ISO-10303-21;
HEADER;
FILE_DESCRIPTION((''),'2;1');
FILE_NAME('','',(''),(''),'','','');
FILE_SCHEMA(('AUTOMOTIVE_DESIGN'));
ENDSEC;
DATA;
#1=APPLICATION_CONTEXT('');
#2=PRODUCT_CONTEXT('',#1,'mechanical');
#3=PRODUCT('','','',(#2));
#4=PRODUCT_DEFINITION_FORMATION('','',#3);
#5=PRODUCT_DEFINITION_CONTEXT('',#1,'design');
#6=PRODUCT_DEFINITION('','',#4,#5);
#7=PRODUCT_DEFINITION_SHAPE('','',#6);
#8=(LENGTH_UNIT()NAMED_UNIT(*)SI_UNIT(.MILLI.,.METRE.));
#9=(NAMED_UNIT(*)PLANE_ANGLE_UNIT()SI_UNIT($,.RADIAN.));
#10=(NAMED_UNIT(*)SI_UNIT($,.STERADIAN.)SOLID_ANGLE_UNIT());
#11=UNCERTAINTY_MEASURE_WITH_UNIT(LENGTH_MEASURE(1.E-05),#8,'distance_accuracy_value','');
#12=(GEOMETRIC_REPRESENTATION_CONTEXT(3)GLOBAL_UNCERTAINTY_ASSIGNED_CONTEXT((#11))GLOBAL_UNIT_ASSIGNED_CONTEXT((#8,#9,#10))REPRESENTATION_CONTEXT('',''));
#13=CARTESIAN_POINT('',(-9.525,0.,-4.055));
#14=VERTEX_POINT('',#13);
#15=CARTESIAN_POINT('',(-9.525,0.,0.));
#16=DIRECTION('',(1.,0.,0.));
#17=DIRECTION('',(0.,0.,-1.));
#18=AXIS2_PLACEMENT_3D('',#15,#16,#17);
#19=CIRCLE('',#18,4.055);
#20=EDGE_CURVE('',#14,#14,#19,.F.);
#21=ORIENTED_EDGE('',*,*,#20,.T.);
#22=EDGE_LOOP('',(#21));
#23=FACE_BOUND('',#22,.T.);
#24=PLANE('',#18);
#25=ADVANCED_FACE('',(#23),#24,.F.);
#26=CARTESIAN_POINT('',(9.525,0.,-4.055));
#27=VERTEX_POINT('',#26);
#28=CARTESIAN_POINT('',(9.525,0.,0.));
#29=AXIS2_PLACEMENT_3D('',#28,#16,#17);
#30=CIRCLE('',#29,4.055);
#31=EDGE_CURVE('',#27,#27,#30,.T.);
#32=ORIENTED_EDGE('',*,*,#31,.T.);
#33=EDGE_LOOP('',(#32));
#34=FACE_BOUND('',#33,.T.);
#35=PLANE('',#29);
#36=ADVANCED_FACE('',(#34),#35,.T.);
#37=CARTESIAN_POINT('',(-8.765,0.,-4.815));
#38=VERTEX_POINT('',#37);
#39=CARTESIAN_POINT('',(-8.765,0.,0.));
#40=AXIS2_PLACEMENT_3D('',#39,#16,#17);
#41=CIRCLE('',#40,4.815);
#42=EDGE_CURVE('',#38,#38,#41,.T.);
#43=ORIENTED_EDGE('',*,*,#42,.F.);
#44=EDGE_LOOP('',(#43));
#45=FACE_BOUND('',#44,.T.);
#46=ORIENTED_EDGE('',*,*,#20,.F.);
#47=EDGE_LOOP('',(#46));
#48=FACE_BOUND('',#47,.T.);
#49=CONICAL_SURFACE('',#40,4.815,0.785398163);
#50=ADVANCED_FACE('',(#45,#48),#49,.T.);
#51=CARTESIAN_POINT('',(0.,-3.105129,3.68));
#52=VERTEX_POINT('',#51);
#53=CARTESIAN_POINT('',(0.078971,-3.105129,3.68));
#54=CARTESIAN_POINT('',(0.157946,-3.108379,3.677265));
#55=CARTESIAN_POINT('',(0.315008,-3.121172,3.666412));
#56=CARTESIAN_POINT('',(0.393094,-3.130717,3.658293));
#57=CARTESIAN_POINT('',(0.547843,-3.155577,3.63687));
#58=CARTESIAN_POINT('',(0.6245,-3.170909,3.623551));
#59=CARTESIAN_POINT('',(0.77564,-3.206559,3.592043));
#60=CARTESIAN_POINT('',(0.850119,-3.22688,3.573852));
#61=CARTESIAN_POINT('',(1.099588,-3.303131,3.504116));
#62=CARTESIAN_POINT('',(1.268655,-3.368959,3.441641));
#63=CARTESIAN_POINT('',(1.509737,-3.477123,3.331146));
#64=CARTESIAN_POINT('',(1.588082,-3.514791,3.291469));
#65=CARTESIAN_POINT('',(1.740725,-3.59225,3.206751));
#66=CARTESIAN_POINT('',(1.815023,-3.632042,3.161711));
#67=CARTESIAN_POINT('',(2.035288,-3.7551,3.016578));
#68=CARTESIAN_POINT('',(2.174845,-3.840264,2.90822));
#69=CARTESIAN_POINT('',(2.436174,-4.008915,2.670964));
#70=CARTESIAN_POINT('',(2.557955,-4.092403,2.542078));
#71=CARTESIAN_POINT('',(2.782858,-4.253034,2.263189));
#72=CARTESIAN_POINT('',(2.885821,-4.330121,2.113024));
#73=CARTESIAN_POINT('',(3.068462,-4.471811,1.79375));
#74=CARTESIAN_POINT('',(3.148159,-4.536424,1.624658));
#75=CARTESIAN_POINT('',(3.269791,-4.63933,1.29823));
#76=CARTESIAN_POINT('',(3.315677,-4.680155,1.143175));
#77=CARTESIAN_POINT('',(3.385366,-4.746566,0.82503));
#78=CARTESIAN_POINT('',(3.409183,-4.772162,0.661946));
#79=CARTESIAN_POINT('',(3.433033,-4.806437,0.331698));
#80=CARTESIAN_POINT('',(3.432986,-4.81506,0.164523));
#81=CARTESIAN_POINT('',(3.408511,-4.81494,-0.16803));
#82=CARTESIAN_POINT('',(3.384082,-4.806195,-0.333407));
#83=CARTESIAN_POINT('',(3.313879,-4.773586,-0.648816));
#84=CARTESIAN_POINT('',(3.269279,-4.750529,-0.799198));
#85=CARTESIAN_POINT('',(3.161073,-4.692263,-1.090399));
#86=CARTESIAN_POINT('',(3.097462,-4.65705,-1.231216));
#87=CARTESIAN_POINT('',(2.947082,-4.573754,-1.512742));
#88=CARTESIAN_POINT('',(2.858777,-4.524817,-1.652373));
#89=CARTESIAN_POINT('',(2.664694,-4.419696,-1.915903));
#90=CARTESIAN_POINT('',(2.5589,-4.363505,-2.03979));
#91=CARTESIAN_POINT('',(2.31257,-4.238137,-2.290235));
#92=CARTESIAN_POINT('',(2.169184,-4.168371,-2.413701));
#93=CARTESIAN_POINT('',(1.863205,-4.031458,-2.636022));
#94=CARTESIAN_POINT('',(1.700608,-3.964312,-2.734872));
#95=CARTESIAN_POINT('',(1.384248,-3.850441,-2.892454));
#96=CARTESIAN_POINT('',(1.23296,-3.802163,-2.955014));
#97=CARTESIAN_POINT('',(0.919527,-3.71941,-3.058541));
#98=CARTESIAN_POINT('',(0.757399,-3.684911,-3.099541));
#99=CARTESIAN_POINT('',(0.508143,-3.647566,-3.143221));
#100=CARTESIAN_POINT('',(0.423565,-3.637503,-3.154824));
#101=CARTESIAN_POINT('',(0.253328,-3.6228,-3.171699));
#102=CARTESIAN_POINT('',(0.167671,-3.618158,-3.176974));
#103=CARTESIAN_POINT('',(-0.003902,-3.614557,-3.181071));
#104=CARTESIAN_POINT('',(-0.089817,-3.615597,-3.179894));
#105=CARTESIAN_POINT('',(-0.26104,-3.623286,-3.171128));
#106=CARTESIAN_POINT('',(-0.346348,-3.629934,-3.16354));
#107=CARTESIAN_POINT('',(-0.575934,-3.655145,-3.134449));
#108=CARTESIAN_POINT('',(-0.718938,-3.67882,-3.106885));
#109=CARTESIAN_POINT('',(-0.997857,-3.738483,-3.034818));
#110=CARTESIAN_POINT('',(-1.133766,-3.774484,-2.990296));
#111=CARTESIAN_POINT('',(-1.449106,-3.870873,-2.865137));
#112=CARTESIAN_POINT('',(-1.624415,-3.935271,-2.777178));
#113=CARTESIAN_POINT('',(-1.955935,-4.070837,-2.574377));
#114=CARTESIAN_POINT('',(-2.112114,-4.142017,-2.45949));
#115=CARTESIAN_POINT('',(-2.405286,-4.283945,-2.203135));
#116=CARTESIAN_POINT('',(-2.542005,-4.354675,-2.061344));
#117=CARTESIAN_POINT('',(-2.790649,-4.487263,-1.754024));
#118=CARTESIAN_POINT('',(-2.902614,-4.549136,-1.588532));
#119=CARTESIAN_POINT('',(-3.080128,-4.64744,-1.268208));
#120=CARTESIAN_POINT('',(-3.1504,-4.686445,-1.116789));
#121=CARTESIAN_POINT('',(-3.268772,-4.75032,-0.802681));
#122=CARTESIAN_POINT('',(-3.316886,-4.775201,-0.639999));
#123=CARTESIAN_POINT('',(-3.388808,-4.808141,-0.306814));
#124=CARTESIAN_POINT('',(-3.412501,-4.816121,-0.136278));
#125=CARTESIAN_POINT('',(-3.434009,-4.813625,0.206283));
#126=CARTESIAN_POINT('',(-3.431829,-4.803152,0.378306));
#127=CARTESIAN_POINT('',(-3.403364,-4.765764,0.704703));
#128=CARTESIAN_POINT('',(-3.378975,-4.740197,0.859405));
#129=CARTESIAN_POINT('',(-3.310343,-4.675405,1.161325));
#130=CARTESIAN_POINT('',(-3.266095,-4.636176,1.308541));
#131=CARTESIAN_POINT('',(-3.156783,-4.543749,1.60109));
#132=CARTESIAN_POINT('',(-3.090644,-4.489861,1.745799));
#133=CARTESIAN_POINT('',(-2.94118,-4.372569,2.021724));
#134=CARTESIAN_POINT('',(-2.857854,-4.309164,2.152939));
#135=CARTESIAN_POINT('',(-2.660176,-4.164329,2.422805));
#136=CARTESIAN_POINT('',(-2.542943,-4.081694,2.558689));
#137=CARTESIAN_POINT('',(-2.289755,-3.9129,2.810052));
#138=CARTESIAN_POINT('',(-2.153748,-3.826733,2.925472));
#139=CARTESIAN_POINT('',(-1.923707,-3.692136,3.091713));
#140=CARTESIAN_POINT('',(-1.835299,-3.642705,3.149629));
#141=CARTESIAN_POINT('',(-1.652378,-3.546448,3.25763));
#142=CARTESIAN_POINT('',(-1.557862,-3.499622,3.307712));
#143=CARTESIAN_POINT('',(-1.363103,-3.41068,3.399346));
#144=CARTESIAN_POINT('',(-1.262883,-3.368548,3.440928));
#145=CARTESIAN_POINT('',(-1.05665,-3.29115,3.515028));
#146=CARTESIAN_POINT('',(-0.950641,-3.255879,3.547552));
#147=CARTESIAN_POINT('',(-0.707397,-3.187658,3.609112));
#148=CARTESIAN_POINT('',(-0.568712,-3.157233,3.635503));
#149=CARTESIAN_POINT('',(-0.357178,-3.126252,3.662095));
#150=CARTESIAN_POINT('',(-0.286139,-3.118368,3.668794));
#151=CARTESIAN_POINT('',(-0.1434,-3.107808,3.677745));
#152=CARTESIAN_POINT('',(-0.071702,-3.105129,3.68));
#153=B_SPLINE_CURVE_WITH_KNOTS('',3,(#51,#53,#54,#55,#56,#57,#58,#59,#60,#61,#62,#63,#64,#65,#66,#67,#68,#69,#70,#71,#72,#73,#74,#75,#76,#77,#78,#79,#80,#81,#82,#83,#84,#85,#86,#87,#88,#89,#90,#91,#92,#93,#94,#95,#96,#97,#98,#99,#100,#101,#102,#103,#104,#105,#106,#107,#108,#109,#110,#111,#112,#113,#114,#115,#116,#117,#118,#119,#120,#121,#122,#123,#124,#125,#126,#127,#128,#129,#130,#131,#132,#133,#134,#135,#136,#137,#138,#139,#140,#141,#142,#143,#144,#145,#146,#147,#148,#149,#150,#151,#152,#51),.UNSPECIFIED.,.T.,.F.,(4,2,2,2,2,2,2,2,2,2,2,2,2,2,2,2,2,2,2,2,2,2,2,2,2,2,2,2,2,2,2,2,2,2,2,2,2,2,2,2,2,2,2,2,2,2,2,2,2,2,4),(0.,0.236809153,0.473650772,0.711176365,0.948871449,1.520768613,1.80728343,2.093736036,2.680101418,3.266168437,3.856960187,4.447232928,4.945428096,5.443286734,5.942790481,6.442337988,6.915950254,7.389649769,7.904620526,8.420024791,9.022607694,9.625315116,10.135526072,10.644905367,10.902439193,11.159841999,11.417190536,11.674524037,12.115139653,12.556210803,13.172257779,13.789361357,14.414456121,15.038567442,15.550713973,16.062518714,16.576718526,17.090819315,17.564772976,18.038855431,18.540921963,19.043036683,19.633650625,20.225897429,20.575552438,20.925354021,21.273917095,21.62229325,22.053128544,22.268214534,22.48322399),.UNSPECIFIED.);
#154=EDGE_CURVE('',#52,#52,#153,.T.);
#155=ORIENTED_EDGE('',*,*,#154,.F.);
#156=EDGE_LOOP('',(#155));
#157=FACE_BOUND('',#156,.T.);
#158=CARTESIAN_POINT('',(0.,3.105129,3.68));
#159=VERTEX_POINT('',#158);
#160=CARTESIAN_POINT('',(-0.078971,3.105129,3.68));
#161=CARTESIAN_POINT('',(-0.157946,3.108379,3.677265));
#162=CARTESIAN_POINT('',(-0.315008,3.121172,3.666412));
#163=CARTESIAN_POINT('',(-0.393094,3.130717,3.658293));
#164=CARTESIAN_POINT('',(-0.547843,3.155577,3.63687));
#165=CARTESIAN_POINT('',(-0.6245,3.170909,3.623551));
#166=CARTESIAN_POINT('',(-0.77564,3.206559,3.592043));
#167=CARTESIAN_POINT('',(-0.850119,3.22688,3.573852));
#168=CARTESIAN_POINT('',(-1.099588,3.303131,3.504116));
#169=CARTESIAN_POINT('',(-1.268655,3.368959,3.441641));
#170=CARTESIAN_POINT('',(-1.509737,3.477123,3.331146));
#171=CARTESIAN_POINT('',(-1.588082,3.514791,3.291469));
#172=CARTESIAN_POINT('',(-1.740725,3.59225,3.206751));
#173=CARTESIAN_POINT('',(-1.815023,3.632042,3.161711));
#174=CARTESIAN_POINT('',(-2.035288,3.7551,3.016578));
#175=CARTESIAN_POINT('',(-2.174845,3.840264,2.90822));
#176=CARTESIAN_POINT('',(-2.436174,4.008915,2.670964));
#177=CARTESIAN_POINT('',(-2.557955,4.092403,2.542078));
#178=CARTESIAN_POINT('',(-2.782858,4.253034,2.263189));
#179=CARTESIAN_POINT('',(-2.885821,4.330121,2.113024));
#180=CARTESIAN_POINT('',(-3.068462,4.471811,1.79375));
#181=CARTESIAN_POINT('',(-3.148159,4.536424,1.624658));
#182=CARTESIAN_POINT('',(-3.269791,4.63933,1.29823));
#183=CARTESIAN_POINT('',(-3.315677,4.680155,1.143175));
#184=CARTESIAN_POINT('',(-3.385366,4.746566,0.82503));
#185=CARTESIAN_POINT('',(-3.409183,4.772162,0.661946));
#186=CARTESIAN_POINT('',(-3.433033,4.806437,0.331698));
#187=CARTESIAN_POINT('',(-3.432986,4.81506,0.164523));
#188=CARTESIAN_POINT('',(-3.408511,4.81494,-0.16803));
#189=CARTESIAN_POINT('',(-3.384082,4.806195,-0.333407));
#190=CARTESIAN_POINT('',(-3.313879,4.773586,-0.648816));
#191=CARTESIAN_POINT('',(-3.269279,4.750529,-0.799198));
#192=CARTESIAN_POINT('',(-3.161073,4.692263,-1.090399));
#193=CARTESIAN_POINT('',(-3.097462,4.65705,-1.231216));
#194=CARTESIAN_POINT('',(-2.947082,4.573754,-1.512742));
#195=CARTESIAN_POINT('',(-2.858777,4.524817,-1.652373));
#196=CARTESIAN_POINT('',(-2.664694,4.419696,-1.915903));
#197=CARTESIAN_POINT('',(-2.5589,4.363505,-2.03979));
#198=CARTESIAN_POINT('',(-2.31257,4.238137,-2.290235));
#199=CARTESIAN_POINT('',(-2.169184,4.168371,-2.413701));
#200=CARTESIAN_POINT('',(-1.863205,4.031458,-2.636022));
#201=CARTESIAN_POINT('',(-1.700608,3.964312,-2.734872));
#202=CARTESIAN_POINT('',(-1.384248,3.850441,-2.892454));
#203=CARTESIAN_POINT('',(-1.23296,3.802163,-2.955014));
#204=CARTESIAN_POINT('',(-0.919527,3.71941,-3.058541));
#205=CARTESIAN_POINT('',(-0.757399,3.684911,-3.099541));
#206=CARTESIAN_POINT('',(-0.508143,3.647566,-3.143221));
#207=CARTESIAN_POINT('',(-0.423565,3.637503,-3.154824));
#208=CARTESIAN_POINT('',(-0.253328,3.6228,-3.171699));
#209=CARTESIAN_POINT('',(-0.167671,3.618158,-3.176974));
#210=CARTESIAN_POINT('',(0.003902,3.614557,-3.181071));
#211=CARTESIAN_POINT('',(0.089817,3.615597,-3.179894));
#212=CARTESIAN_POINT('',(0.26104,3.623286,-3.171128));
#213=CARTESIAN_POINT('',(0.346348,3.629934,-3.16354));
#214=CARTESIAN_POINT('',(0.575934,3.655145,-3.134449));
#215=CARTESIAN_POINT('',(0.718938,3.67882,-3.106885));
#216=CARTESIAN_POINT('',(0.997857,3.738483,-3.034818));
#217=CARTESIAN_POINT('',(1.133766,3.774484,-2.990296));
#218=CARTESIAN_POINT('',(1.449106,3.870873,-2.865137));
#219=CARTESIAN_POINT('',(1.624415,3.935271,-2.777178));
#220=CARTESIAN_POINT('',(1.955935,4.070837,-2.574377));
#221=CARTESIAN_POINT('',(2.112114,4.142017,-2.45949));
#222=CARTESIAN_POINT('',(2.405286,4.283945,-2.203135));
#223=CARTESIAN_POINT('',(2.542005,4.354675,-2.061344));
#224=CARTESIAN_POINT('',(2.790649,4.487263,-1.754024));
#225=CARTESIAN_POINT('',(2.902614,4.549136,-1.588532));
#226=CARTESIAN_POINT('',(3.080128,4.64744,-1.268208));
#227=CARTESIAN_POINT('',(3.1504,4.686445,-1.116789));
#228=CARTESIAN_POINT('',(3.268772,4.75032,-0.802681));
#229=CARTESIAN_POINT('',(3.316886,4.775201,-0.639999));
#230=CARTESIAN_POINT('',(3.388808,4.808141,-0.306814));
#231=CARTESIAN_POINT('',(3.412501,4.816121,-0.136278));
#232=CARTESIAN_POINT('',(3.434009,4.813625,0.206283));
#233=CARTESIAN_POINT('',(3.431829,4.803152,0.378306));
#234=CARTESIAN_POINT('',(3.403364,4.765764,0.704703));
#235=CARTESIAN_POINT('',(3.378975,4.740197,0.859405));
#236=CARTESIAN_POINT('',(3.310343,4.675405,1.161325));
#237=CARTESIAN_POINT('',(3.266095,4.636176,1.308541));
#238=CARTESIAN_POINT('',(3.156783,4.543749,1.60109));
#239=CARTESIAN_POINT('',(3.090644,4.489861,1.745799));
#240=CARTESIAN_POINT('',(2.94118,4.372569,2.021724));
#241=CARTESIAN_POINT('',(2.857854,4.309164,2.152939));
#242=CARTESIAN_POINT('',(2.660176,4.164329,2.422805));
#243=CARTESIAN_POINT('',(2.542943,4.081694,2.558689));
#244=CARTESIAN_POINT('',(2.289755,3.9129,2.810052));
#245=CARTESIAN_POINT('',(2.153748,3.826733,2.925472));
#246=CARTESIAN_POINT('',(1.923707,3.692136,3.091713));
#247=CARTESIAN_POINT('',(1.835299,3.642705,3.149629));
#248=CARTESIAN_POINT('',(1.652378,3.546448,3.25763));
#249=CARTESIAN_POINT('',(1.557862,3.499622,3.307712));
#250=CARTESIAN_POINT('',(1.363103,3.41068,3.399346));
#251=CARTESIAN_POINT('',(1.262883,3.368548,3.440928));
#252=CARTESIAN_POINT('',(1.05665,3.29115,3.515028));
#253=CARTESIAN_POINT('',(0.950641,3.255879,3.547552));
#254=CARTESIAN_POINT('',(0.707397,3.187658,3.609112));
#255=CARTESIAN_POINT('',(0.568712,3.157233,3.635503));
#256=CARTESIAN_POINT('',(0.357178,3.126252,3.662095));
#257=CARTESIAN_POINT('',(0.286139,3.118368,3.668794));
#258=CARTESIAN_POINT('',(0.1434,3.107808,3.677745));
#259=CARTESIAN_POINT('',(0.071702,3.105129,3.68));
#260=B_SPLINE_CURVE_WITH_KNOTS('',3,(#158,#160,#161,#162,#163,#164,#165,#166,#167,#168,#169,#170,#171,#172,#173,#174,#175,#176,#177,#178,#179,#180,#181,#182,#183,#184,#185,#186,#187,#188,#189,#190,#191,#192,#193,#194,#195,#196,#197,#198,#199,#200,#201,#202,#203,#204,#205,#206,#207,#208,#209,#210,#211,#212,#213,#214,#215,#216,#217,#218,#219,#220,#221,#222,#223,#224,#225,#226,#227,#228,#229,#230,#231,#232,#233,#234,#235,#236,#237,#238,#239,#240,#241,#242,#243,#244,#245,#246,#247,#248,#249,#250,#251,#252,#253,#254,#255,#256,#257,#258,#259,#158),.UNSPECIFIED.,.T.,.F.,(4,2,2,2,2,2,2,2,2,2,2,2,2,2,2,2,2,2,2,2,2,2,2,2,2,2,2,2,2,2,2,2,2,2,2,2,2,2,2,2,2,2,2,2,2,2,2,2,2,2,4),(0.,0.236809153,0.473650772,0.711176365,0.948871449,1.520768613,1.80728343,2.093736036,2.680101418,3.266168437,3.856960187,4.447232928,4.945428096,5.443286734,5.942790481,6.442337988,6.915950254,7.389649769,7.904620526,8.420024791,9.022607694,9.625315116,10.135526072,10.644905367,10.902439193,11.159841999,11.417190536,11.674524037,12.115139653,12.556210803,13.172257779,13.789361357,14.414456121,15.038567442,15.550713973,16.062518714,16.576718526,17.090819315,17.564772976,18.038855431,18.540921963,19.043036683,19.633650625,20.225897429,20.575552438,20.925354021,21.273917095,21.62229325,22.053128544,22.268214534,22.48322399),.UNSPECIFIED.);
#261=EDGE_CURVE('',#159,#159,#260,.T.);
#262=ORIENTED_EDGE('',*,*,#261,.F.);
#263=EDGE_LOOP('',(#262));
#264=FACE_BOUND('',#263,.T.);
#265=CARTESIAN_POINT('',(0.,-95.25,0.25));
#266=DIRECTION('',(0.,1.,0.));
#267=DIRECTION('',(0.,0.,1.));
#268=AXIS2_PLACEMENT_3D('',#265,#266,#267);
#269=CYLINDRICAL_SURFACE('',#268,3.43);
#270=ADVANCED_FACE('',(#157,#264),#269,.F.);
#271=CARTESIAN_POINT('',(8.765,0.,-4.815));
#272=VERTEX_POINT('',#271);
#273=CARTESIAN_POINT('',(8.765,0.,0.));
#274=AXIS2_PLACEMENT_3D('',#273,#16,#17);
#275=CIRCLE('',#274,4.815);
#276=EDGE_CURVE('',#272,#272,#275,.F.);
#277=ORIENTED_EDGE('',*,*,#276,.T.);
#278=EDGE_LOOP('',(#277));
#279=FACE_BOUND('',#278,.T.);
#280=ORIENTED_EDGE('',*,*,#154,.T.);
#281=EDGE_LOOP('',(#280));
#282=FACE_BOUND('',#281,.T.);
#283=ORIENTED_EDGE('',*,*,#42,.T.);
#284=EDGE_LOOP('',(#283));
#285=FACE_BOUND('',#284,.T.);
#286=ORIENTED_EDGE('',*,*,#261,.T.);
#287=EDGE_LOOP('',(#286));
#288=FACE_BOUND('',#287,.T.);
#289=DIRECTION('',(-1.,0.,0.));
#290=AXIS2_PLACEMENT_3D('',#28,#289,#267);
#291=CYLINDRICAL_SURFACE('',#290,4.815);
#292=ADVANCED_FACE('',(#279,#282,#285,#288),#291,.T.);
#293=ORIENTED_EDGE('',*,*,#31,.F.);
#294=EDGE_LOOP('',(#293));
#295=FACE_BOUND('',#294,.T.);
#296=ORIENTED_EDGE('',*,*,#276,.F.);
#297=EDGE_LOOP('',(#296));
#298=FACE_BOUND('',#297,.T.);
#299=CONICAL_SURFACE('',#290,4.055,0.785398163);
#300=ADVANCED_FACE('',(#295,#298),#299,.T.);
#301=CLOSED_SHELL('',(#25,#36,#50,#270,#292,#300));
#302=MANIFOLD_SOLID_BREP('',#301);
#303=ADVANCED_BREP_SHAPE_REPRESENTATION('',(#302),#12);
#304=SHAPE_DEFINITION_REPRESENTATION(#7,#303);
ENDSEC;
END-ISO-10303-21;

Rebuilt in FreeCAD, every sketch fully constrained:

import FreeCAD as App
import Part
import Sketcher
Q = App.Units.Quantity


def edges_at(feature, points):
    """Names of the edges that pass closest to the given points."""
    edges = feature.Shape.Edges
    near = lambda p: min(range(len(edges)), key=lambda i: edges[i].distToShape(Part.Vertex(*p))[0])
    return sorted({f"Edge{near(p) + 1}" for p in points})

doc = App.newDocument("Part")
body = doc.addObject("PartDesign::Body", "Body")

# Sketch on YZ plane
sketch1 = doc.addObject("Sketcher::SketchObject", "Sketch")
body.addObject(sketch1)
sketch1.AttachmentSupport = (doc.YZ_Plane, [""])
sketch1.MapMode = "FlatFace"
sketch1.addGeometry(Part.Circle(App.Vector(0, 0, 0), App.Vector(0, 0, 1), 4.8), False)
sketch1.addConstraint([
    Sketcher.Constraint("Coincident", 0, 3, -1, 1),
    Sketcher.Constraint("Diameter", 0, 9.63),
])
pad1 = doc.addObject("PartDesign::Pad", "Pad")
body.addObject(pad1)
pad1.Profile = sketch1
pad1.Length = Q("0.75 in")
pad1.Midplane = True
doc.recompute()

chamfer = doc.addObject("PartDesign::Chamfer", "Chamfer")
body.addObject(chamfer)
chamfer.Base = (pad1, edges_at(pad1, [(-9.525, 0, -4.815), (9.525, 0, -4.815)]))
chamfer.Size = 0.76

# Sketch on XZ plane
sketch2 = doc.addObject("Sketcher::SketchObject", "Sketch001")
body.addObject(sketch2)
sketch2.AttachmentSupport = (doc.XZ_Plane, [""])
sketch2.MapMode = "FlatFace"
sketch2.addGeometry(Part.Circle(App.Vector(0, 0.2, 0), App.Vector(0, 0, 1), 3.4), False)
sketch2.addConstraint([
    Sketcher.Constraint("PointOnObject", 0, 3, -2),
    Sketcher.Constraint("Diameter", 0, 6.86),
    Sketcher.Constraint("DistanceY", -1, 1, 0, 3, 0.25),
])
pocket1 = doc.addObject("PartDesign::Pocket", "Pocket")
body.addObject(pocket1)
pocket1.Profile = sketch2
pocket1.Length = Q("7.5 in")
pocket1.Midplane = True

doc.recompute()
